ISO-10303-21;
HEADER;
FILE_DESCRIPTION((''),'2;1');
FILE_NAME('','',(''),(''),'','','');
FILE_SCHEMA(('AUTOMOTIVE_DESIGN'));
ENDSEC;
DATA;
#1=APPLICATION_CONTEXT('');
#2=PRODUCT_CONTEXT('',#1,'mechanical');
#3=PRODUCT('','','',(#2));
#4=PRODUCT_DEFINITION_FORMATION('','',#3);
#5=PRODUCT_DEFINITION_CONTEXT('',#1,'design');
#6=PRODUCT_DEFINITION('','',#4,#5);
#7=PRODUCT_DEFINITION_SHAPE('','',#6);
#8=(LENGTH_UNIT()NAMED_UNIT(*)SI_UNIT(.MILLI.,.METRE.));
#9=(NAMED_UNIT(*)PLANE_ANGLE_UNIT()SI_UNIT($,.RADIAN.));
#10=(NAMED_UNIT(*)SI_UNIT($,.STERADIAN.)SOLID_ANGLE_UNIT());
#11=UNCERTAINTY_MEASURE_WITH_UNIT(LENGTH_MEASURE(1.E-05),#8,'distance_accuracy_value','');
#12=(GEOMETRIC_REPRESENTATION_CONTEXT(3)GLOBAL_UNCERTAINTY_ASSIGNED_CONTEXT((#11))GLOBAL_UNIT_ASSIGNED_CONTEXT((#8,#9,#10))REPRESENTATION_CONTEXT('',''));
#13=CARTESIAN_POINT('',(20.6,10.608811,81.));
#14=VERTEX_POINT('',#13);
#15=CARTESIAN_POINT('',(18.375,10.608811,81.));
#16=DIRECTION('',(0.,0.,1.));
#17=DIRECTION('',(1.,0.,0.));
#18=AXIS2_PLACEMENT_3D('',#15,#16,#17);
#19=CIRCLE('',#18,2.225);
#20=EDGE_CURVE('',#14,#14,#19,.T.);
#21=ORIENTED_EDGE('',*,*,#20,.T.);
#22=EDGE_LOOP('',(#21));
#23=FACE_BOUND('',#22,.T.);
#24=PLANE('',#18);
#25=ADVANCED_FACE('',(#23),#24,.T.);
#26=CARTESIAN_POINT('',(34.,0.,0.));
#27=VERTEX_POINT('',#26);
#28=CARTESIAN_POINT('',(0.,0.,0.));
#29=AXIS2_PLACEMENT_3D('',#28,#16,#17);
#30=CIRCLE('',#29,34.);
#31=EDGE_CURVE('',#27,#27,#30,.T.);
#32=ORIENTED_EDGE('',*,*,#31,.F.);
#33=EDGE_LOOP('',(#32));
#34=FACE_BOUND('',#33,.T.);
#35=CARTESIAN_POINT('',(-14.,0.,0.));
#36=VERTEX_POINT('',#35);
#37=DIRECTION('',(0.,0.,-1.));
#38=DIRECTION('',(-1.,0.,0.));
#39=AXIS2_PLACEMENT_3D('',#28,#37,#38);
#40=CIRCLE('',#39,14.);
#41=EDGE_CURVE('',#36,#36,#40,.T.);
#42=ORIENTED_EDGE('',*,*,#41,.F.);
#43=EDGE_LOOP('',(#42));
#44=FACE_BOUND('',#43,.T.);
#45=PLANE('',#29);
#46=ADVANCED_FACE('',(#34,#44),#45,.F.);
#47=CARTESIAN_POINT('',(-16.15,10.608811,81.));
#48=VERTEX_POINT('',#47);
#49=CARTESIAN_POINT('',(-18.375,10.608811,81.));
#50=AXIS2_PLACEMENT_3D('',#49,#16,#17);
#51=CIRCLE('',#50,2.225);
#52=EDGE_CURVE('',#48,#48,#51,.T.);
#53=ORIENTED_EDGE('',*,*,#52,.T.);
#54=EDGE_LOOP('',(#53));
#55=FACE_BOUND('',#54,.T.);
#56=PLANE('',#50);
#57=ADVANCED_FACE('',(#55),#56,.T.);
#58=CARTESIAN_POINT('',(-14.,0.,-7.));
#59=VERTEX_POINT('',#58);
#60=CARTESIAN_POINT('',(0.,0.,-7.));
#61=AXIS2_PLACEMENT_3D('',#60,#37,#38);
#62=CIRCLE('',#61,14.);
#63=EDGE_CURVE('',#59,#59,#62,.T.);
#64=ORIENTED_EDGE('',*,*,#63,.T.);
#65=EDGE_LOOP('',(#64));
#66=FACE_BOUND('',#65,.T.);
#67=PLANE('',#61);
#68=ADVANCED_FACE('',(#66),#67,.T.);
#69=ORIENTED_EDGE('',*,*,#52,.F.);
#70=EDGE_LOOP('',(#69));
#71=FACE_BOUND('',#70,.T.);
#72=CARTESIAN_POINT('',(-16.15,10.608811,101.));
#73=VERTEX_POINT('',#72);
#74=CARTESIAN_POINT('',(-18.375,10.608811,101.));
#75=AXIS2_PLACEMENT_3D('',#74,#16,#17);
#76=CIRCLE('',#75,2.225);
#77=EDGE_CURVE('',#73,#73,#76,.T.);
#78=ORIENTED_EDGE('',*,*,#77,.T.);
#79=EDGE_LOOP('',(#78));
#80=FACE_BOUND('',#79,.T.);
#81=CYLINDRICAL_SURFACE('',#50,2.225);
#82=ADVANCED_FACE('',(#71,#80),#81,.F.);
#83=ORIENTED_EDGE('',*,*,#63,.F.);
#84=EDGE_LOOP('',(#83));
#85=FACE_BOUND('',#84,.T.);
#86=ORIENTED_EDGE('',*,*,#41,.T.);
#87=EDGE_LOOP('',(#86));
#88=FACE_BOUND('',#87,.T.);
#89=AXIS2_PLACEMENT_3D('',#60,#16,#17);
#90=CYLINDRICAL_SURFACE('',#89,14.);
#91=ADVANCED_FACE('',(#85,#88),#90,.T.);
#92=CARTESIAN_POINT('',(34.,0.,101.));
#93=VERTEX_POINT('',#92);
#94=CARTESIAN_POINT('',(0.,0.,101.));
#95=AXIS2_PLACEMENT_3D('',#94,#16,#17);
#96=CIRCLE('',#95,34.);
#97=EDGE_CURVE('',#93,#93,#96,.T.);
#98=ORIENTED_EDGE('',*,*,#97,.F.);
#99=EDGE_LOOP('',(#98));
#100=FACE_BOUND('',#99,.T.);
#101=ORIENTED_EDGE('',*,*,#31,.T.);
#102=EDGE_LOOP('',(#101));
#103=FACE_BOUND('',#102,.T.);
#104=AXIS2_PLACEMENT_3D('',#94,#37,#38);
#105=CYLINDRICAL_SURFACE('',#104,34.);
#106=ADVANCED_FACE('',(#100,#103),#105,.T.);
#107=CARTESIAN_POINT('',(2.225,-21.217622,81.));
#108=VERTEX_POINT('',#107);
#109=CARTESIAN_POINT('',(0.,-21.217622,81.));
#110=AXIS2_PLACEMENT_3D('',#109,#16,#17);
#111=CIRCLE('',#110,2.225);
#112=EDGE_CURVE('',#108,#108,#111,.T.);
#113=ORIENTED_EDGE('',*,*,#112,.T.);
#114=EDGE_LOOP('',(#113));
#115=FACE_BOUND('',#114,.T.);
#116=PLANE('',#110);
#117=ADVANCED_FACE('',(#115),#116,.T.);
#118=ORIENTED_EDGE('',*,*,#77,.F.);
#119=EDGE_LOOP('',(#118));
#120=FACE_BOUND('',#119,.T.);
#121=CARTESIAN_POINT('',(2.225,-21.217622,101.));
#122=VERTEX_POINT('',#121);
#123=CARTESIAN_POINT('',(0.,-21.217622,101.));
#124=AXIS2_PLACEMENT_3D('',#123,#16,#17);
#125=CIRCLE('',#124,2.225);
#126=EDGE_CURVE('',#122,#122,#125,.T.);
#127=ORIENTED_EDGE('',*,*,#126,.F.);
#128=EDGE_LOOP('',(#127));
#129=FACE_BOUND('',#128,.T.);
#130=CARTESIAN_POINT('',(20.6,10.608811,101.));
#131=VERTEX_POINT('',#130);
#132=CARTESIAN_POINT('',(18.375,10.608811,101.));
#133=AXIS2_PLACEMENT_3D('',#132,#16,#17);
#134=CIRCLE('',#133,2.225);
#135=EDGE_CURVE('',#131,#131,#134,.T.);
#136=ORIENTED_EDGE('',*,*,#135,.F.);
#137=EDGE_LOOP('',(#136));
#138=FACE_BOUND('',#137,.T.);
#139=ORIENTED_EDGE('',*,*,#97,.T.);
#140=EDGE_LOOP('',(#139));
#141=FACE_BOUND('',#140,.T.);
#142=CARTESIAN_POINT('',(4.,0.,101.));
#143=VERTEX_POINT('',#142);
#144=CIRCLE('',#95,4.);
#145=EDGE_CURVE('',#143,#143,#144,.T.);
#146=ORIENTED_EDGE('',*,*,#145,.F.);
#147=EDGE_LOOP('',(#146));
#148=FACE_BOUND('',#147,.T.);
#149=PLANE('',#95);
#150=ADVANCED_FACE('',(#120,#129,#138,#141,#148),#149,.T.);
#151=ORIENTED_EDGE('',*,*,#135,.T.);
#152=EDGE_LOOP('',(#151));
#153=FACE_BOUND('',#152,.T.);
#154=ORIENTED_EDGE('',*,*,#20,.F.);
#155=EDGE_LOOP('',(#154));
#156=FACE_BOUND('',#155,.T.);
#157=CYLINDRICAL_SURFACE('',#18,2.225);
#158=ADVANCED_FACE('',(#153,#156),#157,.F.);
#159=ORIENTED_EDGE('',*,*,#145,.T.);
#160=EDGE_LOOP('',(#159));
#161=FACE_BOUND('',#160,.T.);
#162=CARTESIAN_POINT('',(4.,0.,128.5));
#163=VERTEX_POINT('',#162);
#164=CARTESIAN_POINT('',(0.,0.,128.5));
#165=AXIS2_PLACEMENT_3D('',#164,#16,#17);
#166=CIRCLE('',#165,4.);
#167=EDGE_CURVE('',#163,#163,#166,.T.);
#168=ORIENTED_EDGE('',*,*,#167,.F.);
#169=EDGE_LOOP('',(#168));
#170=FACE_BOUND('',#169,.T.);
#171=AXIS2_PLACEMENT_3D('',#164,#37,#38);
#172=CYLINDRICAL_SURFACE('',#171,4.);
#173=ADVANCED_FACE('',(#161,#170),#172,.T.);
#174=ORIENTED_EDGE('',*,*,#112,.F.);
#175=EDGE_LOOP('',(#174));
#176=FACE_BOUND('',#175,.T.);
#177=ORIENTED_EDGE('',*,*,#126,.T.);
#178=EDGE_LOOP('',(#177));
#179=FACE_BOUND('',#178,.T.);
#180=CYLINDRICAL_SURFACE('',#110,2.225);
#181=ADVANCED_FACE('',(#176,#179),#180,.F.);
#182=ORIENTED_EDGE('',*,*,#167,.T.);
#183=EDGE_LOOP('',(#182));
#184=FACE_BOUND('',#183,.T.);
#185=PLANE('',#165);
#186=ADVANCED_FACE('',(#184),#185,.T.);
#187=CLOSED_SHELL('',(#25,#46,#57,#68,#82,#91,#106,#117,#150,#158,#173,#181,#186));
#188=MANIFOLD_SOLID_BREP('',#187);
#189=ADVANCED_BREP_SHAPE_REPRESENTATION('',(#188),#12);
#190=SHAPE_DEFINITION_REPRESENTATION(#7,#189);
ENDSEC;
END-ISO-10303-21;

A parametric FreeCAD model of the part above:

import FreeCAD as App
import Part
import Sketcher

V = App.Vector
Q = App.Units.Quantity

doc = App.newDocument("Part")
body = doc.addObject("PartDesign::Body", "Body")

sketch1 = body.newObject("Sketcher::SketchObject", "Sketch")
sketch1.AttachmentSupport = (doc.getObject("XY_Plane"), [""])
sketch1.MapMode = "FlatFace"
sketch1.addGeometry(Part.Circle(V(0, 0, 0), V(0, 0, 1), 34), False)
sketch1.addConstraint(Sketcher.Constraint("Coincident", 0, 3, -1, 1))
sketch1.addConstraint(Sketcher.Constraint("Diameter", 0, Q("68 mm")))
pad1 = body.newObject("PartDesign::Pad", "Pad")
pad1.Profile = sketch1
pad1.Length = 101

sketch2 = body.newObject("Sketcher::SketchObject", "Sketch001")
sketch2.AttachmentSupport = (doc.getObject("XY_Plane"), [""])
sketch2.MapMode = "FlatFace"
sketch2.AttachmentOffset = App.Placement(V(0, 0, 101), App.Rotation())
sketch2.addGeometry(Part.Circle(V(0, 0, 0), V(0, 0, 1), 4), False)
sketch2.addConstraint(Sketcher.Constraint("Coincident", 0, 3, -1, 1))
sketch2.addConstraint(Sketcher.Constraint("Diameter", 0, Q("8 mm")))
pad2 = body.newObject("PartDesign::Pad", "Pad001")
pad2.Profile = sketch2
pad2.Length = 27.5

sketch3 = body.newObject("Sketcher::SketchObject", "Sketch002")
sketch3.AttachmentSupport = (doc.getObject("XY_Plane"), [""])
sketch3.MapMode = "FlatFace"
sketch3.AttachmentOffset = App.Placement(V(0, 0, 101), App.Rotation())
sketch3.addGeometry(Part.Circle(V(-18.375, 10.608811, 0), V(0, 0, 1), 2.225), False)
sketch3.addGeometry(Part.Circle(V(18.375, 10.608811, 0), V(0, 0, 1), 2.225), False)
sketch3.addGeometry(Part.Circle(V(0, -21.217622, 0), V(0, 0, 1), 2.225), False)
sketch3.addConstraint(Sketcher.Constraint("Equal", 0, 1))
sketch3.addConstraint(Sketcher.Constraint("Equal", 1, 2))
sketch3.addConstraint(Sketcher.Constraint("Symmetric", 0, 3, 1, 3, -2))
sketch3.addConstraint(Sketcher.Constraint("PointOnObject", 2, 3, -2))
sketch3.addConstraint(Sketcher.Constraint("Diameter", 0, Q("4.45 mm")))
sketch3.addConstraint(Sketcher.Constraint("DistanceX", 0, 3, 1, 3, Q("36.75 mm")))
sketch3.addConstraint(Sketcher.Constraint("DistanceY", -1, 1, 0, 3, Q("10.608811 mm")))
sketch3.addConstraint(Sketcher.Constraint("DistanceY", 2, 3, -1, 1, Q("21.217622 mm")))
pocket1 = body.newObject("PartDesign::Pocket", "Pocket")
pocket1.Profile = sketch3
pocket1.Length = 20

sketch4 = body.newObject("Sketcher::SketchObject", "Sketch003")
sketch4.AttachmentSupport = (doc.getObject("XY_Plane"), [""])
sketch4.MapMode = "FlatFace"
sketch4.addGeometry(Part.Circle(V(0, 0, 0), V(0, 0, 1), 14), False)
sketch4.addConstraint(Sketcher.Constraint("Coincident", 0, 3, -1, 1))
sketch4.addConstraint(Sketcher.Constraint("Diameter", 0, Q("28 mm")))
pad3 = body.newObject("PartDesign::Pad", "Pad002")
pad3.Profile = sketch4
pad3.Length = 7
pad3.Reversed = True

doc.recompute()
